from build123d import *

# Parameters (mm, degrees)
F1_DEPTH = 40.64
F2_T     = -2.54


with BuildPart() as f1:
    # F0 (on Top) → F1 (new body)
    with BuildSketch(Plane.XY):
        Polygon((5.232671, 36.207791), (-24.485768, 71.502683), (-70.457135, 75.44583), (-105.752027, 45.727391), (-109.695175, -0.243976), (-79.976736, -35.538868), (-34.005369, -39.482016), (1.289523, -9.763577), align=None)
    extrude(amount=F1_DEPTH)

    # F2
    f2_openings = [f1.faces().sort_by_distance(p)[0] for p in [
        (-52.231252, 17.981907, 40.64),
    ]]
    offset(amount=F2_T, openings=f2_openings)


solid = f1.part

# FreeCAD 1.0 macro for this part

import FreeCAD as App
import Part
import Sketcher
from FreeCAD import Vector
Q = App.Units.Quantity


def faces_at(feature, points):
    """Names of the faces that lie closest to the given points."""
    faces = feature.Shape.Faces
    near = lambda p: min(range(len(faces)), key=lambda i: faces[i].distToShape(Part.Vertex(*p))[0])
    return sorted({f"Face{near(p) + 1}" for p in points})


def add_polygon(sketch, points):
    """Adds a closed chain of lines whose ends are joined by coincident constraints."""
    first, n = sketch.GeometryCount, len(points)
    for a, b in zip(points, points[1:] + points[:1]):
        sketch.addGeometry(Part.LineSegment(App.Vector(*a, 0), App.Vector(*b, 0)), False)
    for i in range(n):
        sketch.addConstraint(Sketcher.Constraint("Coincident", first + i, 2, first + (i + 1) % n, 1))

doc = App.newDocument("Part")
body = doc.addObject("PartDesign::Body", "Body")

sketch1 = body.newObject("Sketcher::SketchObject", "Sketch")
sketch1.AttachmentSupport = (doc.getObject("XY_Plane"), [""])
sketch1.MapMode = "FlatFace"
add_polygon(sketch1, [(5, 36), (-24, 72), (-70, 75), (-106, 46), (-110, 0), (-80, -36), (-34, -39), (1, -10)])
sketch1.addConstraint(Sketcher.Constraint("Perpendicular", 0, 2))
sketch1.addConstraint(Sketcher.Constraint("Perpendicular", 1, 3))
sketch1.addConstraint(Sketcher.Constraint("Perpendicular", 2, 4))
sketch1.addConstraint(Sketcher.Constraint("Perpendicular", 3, 5))
sketch1.addConstraint(Sketcher.Constraint("Perpendicular", 4, 6))
sketch1.addConstraint(Sketcher.Constraint("Perpendicular", 5, 7))
sketch1.addConstraint(Sketcher.Constraint("Equal", 0, 1))
sketch1.addConstraint(Sketcher.Constraint("Equal", 1, 2))
sketch1.addConstraint(Sketcher.Constraint("Equal", 2, 3))
sketch1.addConstraint(Sketcher.Constraint("Equal", 3, 4))
sketch1.addConstraint(Sketcher.Constraint("Equal", 4, 5))
sketch1.addConstraint(Sketcher.Constraint("DistanceX", 4, 2, 1, 2, Q("9.519601 mm")))
sketch1.addConstraint(Sketcher.Constraint("DistanceY", 4, 2, 1, 2, Q("110.984698 mm")))
sketch1.addConstraint(Sketcher.Constraint("DistanceX", 0, 2, -1, 1, Q("24.485768 mm")))
sketch1.addConstraint(Sketcher.Constraint("DistanceY", -1, 1, 1, 2, Q("75.44583 mm")))
sketch1.addConstraint(Sketcher.Constraint("DistanceY", -1, 1, 2, 2, Q("45.727391 mm")))
pad1 = body.newObject("PartDesign::Pad", "Pad")
pad1.Profile = sketch1
pad1.Length = Q("1.6 in")
doc.recompute()

thickness = body.newObject("PartDesign::Thickness", "Thickness")
thickness.Base = (pad1, faces_at(pad1, [(-52.231, 17.982, 40.64)]))
thickness.Value = Q("0.1 in")
thickness.Reversed = True
thickness.Join = "Arc"

doc.recompute()
